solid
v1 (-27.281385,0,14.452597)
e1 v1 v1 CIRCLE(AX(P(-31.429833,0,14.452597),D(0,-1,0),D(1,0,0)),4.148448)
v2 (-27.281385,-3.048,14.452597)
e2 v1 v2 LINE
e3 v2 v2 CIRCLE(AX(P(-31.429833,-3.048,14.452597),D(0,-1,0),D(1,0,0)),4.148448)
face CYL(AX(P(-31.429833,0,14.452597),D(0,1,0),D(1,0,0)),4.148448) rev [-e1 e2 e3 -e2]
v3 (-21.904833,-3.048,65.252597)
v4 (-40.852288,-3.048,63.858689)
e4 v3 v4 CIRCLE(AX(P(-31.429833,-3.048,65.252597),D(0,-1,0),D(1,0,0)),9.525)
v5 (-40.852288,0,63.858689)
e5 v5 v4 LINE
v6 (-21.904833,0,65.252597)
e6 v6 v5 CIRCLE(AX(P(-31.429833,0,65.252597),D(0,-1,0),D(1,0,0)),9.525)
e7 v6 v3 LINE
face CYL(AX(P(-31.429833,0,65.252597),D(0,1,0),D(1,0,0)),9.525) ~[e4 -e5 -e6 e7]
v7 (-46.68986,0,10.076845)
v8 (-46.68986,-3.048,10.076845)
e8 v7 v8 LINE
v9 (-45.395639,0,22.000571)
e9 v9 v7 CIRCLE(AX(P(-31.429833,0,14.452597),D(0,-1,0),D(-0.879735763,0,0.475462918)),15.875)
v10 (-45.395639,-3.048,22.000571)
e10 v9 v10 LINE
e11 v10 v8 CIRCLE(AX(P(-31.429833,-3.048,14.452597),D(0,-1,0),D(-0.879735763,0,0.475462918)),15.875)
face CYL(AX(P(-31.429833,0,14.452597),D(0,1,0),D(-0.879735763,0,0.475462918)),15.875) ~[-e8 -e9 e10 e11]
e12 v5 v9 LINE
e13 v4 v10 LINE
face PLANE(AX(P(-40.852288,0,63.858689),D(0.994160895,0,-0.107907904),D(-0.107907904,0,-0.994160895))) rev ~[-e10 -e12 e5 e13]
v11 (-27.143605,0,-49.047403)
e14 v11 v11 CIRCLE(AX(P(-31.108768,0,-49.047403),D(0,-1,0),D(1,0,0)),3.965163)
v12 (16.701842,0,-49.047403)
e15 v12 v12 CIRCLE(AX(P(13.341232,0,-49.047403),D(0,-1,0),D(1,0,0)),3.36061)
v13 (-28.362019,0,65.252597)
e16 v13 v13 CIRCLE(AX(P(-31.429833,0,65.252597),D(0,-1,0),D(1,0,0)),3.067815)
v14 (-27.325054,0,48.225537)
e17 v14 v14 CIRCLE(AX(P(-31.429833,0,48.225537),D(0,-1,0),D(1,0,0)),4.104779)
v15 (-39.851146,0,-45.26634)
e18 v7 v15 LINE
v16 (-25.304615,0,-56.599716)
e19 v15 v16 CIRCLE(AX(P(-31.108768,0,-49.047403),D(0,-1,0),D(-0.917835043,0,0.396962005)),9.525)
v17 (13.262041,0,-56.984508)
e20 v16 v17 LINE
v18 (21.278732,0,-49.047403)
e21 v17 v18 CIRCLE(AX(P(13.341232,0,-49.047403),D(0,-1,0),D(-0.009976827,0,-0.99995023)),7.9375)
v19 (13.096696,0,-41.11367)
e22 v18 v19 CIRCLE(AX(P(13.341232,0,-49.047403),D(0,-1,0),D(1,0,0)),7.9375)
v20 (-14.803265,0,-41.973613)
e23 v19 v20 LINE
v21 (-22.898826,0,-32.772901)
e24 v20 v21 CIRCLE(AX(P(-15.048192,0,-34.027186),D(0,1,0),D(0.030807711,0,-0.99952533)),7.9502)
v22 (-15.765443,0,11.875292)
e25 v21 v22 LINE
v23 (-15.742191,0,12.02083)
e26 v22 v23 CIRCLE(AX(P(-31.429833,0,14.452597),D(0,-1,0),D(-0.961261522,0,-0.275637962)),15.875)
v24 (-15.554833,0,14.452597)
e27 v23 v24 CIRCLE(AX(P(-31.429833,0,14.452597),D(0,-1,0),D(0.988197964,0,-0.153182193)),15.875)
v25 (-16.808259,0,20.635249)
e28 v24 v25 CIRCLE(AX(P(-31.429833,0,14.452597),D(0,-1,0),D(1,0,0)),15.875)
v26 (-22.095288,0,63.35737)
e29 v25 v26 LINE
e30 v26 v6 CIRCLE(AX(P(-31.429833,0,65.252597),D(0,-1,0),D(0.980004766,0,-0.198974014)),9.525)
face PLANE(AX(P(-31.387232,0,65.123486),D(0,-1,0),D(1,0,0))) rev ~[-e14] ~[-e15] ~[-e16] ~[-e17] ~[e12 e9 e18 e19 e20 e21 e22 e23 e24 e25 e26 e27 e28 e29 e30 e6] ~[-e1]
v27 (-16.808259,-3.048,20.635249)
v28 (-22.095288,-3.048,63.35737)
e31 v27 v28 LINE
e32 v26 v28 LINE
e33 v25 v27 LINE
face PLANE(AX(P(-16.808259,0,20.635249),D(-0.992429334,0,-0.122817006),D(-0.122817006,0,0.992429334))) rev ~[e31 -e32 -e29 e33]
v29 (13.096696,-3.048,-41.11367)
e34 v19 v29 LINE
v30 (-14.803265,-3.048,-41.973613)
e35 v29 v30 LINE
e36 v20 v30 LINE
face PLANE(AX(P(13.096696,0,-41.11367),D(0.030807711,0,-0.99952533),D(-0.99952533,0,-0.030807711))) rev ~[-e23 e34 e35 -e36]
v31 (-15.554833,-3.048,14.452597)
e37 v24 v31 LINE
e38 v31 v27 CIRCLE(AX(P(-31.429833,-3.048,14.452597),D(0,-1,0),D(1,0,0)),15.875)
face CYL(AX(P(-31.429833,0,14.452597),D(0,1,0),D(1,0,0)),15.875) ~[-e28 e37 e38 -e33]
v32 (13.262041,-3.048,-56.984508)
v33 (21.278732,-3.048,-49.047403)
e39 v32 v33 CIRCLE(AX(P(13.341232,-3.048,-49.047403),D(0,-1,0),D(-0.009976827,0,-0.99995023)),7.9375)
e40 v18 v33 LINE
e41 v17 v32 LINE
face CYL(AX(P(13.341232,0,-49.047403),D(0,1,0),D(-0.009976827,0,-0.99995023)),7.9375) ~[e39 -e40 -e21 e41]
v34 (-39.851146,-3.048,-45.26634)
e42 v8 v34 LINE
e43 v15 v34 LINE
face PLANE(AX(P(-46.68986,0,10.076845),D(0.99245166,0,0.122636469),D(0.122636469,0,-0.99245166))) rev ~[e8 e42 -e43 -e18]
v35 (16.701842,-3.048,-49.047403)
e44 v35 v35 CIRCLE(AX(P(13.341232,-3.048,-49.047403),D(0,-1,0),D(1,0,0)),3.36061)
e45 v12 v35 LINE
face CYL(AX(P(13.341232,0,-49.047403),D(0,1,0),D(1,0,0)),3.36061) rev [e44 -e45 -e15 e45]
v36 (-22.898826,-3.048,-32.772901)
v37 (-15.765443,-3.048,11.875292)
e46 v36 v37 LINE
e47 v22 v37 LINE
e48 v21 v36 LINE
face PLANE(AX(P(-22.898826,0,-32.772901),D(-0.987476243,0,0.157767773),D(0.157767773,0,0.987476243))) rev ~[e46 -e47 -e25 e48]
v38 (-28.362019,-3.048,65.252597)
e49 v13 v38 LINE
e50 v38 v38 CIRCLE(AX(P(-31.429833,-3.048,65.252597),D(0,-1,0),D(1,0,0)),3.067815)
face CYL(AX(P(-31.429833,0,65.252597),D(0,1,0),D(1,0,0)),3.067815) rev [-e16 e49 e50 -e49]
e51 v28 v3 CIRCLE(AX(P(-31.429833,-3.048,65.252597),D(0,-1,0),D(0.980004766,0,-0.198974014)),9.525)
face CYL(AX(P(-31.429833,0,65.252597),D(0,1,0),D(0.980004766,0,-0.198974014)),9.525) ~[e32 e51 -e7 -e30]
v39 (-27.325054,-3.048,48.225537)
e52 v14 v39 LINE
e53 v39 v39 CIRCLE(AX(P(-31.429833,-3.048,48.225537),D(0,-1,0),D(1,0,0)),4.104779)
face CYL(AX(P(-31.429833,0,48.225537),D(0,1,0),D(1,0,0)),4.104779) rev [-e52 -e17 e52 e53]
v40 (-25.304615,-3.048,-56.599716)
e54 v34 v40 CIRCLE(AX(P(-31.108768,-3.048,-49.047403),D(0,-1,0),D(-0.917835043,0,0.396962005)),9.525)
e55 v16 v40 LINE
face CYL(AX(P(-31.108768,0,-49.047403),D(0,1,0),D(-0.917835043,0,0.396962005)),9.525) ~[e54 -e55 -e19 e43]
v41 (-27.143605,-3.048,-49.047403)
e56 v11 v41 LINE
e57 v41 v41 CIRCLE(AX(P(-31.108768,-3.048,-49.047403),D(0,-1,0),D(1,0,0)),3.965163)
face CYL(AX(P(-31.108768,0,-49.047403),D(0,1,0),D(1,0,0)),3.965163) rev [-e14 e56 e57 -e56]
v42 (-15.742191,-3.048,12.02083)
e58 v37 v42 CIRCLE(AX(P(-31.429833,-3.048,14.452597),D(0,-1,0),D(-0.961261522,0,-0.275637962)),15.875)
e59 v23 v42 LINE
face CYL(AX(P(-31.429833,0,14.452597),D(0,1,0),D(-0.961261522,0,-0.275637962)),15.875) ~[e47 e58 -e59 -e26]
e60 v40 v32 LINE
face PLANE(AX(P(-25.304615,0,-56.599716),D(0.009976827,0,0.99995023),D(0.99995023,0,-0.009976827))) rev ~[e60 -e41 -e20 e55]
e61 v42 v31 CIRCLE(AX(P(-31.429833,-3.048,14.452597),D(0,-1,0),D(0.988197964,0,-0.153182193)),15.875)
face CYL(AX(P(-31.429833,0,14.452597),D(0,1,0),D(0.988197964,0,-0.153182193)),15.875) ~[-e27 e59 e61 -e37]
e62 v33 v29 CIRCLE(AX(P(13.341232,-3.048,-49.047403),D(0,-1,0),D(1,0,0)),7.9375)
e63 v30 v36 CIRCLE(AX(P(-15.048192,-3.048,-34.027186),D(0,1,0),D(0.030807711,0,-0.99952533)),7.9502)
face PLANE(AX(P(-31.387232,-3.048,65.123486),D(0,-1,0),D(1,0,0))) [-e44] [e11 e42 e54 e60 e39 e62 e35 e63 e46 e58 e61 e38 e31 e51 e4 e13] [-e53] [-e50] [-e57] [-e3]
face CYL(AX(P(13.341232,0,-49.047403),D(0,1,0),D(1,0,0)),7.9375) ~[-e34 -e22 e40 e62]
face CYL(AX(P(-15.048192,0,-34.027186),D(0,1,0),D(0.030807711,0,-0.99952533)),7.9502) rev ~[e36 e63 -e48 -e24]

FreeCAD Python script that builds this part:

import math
import FreeCAD as App
import Part
import Sketcher
from FreeCAD import Vector
Q = App.Units.Quantity

doc = App.newDocument("Part")
body = doc.addObject("PartDesign::Body", "Body")

# Sketch on XZ plane
sketch1 = body.newObject("Sketcher::SketchObject", "Sketch")
sketch1.AttachmentSupport = (doc.getObject("XZ_Plane"), [""])
sketch1.MapMode = "FlatFace"
sketch1.addGeometry([
    Part.ArcOfCircle(Part.Circle(Vector(-31.429833, 65.252597, 0), Vector(0, 0, 1), 9.525), math.radians(-11.476969), math.radians(0)),  # 0
    Part.ArcOfCircle(Part.Circle(Vector(-31.429833, 65.252597, 0), Vector(0, 0, 1), 9.525), math.radians(0), math.radians(188.415001)),  # 1
    Part.LineSegment(Vector(-40.852288, 63.858689, 0), Vector(-45.395639, 22.000571, 0)),  # 2
    Part.ArcOfCircle(Part.Circle(Vector(-31.429833, 14.452597, 0), Vector(0, 0, 1), 15.875), math.radians(151.610505), math.radians(196.000036)),  # 3
    Part.LineSegment(Vector(-46.68986, 10.076845, 0), Vector(-39.851146, -45.26634, 0)),  # 4
    Part.ArcOfCircle(Part.Circle(Vector(-31.108768, -49.047403, 0), Vector(0, 0, 1), 9.525), math.radians(156.611604), math.radians(307.543235)),  # 5
    Part.LineSegment(Vector(-25.304615, -56.599716, 0), Vector(13.262041, -56.984508, 0)),  # 6
    Part.ArcOfCircle(Part.Circle(Vector(13.341232, -49.047403, 0), Vector(0, 0, 1), 7.9375), math.radians(-90.57164), math.radians(0)),  # 7
    Part.ArcOfCircle(Part.Circle(Vector(13.341232, -49.047403, 0), Vector(0, 0, 1), 7.9375), math.radians(0), math.radians(91.765431)),  # 8
    Part.LineSegment(Vector(13.096696, -41.11367, 0), Vector(-14.803265, -41.973613, 0)),  # 9
    Part.ArcOfCircle(Part.Circle(Vector(-15.048192, -34.027186, 0), Vector(0, 0, 1), 7.9502), math.radians(170.922647), math.radians(271.765431)),  # 10
    Part.LineSegment(Vector(-22.898826, -32.772901, 0), Vector(-15.765443, 11.875292, 0)),  # 11
    Part.ArcOfCircle(Part.Circle(Vector(-31.429833, 14.452597, 0), Vector(0, 0, 1), 15.875), math.radians(-9.343322), math.radians(-8.811385)),  # 12
    Part.ArcOfCircle(Part.Circle(Vector(-31.429833, 14.452597, 0), Vector(0, 0, 1), 15.875), math.radians(-8.811385), math.radians(0)),  # 13
    Part.ArcOfCircle(Part.Circle(Vector(-31.429833, 14.452597, 0), Vector(0, 0, 1), 15.875), math.radians(0), math.radians(22.920801)),  # 14
    Part.LineSegment(Vector(-16.808259, 20.635249, 0), Vector(-22.095288, 63.35737, 0)),  # 15
    Part.Circle(Vector(-31.108768, -49.047403, 0), Vector(0, 0, 1), 3.965163),  # 16
    Part.Circle(Vector(13.341232, -49.047403, 0), Vector(0, 0, 1), 3.36061),  # 17
    Part.Circle(Vector(-31.429833, 14.452597, 0), Vector(0, 0, 1), 4.148448),  # 18
    Part.Circle(Vector(-31.429833, 48.225537, 0), Vector(0, 0, 1), 4.104779),  # 19
    Part.Circle(Vector(-31.429833, 65.252597, 0), Vector(0, 0, 1), 3.067815),  # 20
], False)
sketch1.addConstraint([
    Sketcher.Constraint("Coincident", 0, 2, 1, 1),
    Sketcher.Constraint("Coincident", 1, 2, 2, 1),
    Sketcher.Constraint("Coincident", 2, 2, 3, 1),
    Sketcher.Constraint("Coincident", 3, 2, 4, 1),
    Sketcher.Constraint("Coincident", 4, 2, 5, 1),
    Sketcher.Constraint("Coincident", 5, 2, 6, 1),
    Sketcher.Constraint("Coincident", 6, 2, 7, 1),
    Sketcher.Constraint("Coincident", 7, 2, 8, 1),
    Sketcher.Constraint("Coincident", 8, 2, 9, 1),
    Sketcher.Constraint("Coincident", 9, 2, 10, 2),
    Sketcher.Constraint("Coincident", 10, 1, 11, 1),
    Sketcher.Constraint("Coincident", 11, 2, 12, 1),
    Sketcher.Constraint("Coincident", 12, 2, 13, 1),
    Sketcher.Constraint("Coincident", 13, 2, 14, 1),
    Sketcher.Constraint("Coincident", 14, 2, 15, 1),
    Sketcher.Constraint("Coincident", 15, 2, 0, 1),
    Sketcher.Constraint("Coincident", 1, 3, 0, 3),
    Sketcher.Constraint("Coincident", 8, 3, 7, 3),
    Sketcher.Constraint("Coincident", 12, 3, 3, 3),
    Sketcher.Constraint("Coincident", 13, 3, 3, 3),
    Sketcher.Constraint("Coincident", 14, 3, 3, 3),
    Sketcher.Constraint("Coincident", 16, 3, 5, 3),
    Sketcher.Constraint("Coincident", 17, 3, 7, 3),
    Sketcher.Constraint("Coincident", 18, 3, 3, 3),
    Sketcher.Constraint("Coincident", 20, 3, 0, 3),
    Sketcher.Constraint("Radius", 0, Q("0.375 in")),
    Sketcher.Constraint("Radius", 3, Q("0.625 in")),
    Sketcher.Constraint("Radius", 5, Q("0.375 in")),
    Sketcher.Constraint("Radius", 7, Q("0.3125 in")),
    Sketcher.Constraint("Radius", 10, Q("0.313 in")),
    Sketcher.Constraint("Radius", 12, Q("0.625 in")),
    Sketcher.Constraint("DistanceY", 3, 3, 1, 3, Q("2 in")),
    Sketcher.Constraint("DistanceY", 13, 3, 0, 2, Q("2 in")),
    Sketcher.Constraint("DistanceY", 5, 3, 3, 3, Q("2.5 in")),
    Sketcher.Constraint("DistanceY", 7, 3, 3, 3, Q("2.5 in")),
    Sketcher.Constraint("DistanceX", 5, 3, 7, 3, Q("1.75 in")),
    Sketcher.Constraint("Diameter", 17, Q("6.72122 mm")),
    Sketcher.Constraint("Diameter", 19, Q("8.209559 mm")),
    Sketcher.Constraint("Diameter", 20, Q("6.13563 mm")),
    Sketcher.Constraint("DistanceY", -1, 1, 0, 3, Q("2.5689999 in")),
    Sketcher.Constraint("DistanceY", 7, 2, -1, 1, Q("1.9310001 in")),
    Sketcher.Constraint("DistanceY", -1, 1, 13, 2, Q("0.5689999 in")),
    Sketcher.Constraint("DistanceX", 19, 3, 0, 2, Q("0.375 in")),
    Sketcher.Constraint("DistanceX", 13, 3, 0, 2, Q("0.375 in")),
    Sketcher.Constraint("Diameter", 16, Q("7.930325 mm")),
    Sketcher.Constraint("Diameter", 18, Q("8.296896 mm")),
    Sketcher.Constraint("DistanceY", 10, 1, -1, 1, Q("32.772901 mm")),
    Sketcher.Constraint("Distance", 4, Q("55.764111 mm")),
    Sketcher.Constraint("Distance", 9, Q("27.91321 mm")),
    Sketcher.Constraint("DistanceY", -1, 1, 1, 2, Q("63.858689 mm")),
    Sketcher.Constraint("DistanceX", 2, 2, -1, 1, Q("45.395639 mm")),
    Sketcher.Constraint("DistanceY", -1, 1, 2, 2, Q("22.000571 mm")),
    Sketcher.Constraint("DistanceX", 3, 2, -1, 1, Q("46.68986 mm")),
    Sketcher.Constraint("DistanceY", 4, 2, -1, 1, Q("45.26634 mm")),
    Sketcher.Constraint("DistanceX", -1, 1, 6, 2, Q("13.262041 mm")),
    Sketcher.Constraint("DistanceY", 8, 2, -1, 1, Q("41.11367 mm")),
    Sketcher.Constraint("DistanceY", -1, 1, 11, 2, Q("11.875292 mm")),
    Sketcher.Constraint("DistanceX", 12, 2, -1, 1, Q("15.742191 mm")),
    Sketcher.Constraint("DistanceX", 14, 2, -1, 1, Q("16.808259 mm")),
    Sketcher.Constraint("DistanceX", 15, 2, -1, 1, Q("22.095288 mm")),
    Sketcher.Constraint("DistanceX", 3, 3, 10, 3, Q("16.381641 mm")),
    Sketcher.Constraint("DistanceY", 19, 3, 1, 3, Q("17.02706 mm")),
    Sketcher.Constraint("DistanceX", 4, 2, 5, 2, Q("14.546532 mm")),
    Sketcher.Constraint("DistanceY", 5, 2, 10, 3, Q("22.572529 mm")),
])
pad1 = body.newObject("PartDesign::Pad", "Pad")
pad1.Profile = sketch1
pad1.Length = Q("0.12 in")

doc.recompute()
